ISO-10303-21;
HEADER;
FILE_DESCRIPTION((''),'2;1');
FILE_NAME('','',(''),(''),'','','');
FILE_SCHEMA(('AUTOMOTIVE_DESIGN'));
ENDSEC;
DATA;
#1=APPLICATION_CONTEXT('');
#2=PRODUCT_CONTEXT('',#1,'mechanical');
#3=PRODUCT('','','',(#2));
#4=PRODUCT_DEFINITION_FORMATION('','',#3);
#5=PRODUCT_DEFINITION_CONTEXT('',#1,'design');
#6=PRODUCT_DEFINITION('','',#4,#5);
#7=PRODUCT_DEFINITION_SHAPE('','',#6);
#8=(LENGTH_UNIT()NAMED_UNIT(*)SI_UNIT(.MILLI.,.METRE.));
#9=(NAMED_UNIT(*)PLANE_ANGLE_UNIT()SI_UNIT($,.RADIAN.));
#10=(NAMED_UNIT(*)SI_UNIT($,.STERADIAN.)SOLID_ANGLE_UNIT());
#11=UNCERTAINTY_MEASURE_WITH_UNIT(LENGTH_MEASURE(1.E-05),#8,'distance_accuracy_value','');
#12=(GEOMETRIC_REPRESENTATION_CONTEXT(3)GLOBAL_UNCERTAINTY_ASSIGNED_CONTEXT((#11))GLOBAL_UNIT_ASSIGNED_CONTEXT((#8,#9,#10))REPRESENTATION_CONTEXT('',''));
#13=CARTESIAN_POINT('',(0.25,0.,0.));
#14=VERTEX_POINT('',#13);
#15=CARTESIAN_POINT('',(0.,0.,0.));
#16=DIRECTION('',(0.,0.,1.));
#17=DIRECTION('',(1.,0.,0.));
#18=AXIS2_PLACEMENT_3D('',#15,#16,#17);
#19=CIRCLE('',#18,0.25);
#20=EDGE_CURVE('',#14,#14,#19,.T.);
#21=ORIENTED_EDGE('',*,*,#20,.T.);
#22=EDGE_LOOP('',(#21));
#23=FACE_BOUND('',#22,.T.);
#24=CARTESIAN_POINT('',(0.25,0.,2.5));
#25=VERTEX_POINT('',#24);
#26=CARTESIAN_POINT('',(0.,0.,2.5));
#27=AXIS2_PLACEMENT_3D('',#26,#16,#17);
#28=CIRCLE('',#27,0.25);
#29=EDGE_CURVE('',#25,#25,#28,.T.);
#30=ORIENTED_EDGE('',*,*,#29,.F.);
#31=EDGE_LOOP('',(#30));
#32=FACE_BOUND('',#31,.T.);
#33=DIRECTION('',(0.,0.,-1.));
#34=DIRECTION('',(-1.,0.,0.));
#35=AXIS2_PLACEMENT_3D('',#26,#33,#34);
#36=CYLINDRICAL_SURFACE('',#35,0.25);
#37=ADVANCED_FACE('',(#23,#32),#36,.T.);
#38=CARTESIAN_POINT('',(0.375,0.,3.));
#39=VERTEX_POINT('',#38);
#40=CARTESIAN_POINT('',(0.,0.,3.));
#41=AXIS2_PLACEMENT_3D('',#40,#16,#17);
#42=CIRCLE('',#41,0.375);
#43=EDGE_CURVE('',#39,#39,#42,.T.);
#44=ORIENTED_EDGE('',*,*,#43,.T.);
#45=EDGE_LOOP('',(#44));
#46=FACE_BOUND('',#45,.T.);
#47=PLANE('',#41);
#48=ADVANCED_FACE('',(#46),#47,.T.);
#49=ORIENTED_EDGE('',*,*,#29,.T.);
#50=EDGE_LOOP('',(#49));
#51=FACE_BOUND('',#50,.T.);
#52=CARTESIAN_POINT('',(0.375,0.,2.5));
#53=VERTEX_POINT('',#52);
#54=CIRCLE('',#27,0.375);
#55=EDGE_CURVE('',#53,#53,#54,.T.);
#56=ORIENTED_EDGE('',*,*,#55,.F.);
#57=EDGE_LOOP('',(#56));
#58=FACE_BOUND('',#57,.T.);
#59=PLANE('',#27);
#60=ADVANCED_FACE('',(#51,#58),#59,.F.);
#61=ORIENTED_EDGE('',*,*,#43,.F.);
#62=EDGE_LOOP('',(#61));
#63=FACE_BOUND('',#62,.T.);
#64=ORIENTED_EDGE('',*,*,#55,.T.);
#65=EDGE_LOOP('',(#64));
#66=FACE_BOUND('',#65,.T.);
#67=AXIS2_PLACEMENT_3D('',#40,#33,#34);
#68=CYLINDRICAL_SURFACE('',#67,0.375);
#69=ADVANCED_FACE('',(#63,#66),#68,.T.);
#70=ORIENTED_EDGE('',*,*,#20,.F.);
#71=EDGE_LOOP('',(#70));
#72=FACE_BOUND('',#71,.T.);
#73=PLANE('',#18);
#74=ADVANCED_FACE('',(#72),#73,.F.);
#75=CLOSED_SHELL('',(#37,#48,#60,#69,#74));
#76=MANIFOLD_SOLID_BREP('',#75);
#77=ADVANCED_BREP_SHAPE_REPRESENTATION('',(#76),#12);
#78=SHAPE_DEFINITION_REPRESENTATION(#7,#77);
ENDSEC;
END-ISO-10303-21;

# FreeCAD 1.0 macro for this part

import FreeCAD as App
import Part
import Sketcher

V = App.Vector
Q = App.Units.Quantity

doc = App.newDocument("Part")
body = doc.addObject("PartDesign::Body", "Body")

# Sketch on XY plane
sketch1 = doc.addObject("Sketcher::SketchObject", "Sketch")
body.addObject(sketch1)
sketch1.AttachmentSupport = (doc.XY_Plane, [""])
sketch1.MapMode = "FlatFace"
sketch1.addGeometry(Part.Circle(V(0, 0, 0), V(0, 0, 1), 0.25), False)
sketch1.addConstraint([
    Sketcher.Constraint("Coincident", 0, 3, -1, 1),
    Sketcher.Constraint("Diameter", 0, Q("0.5 mm")),
])
pad1 = doc.addObject("PartDesign::Pad", "Pad")
body.addObject(pad1)
pad1.Profile = sketch1
pad1.Length = 2.5

# Sketch on XY plane
sketch2 = doc.addObject("Sketcher::SketchObject", "Sketch001")
body.addObject(sketch2)
sketch2.AttachmentSupport = (doc.XY_Plane, [""])
sketch2.MapMode = "FlatFace"
sketch2.AttachmentOffset = App.Placement(V(0, 0, 2.5), App.Rotation())
sketch2.addGeometry(Part.Circle(V(0, 0, 0), V(0, 0, 1), 0.375), False)
sketch2.addConstraint([
    Sketcher.Constraint("Coincident", 0, 3, -1, 1),
    Sketcher.Constraint("Diameter", 0, Q("0.75 mm")),
])
pad2 = doc.addObject("PartDesign::Pad", "Pad001")
body.addObject(pad2)
pad2.Profile = sketch2
pad2.Length = 0.5

doc.recompute()
